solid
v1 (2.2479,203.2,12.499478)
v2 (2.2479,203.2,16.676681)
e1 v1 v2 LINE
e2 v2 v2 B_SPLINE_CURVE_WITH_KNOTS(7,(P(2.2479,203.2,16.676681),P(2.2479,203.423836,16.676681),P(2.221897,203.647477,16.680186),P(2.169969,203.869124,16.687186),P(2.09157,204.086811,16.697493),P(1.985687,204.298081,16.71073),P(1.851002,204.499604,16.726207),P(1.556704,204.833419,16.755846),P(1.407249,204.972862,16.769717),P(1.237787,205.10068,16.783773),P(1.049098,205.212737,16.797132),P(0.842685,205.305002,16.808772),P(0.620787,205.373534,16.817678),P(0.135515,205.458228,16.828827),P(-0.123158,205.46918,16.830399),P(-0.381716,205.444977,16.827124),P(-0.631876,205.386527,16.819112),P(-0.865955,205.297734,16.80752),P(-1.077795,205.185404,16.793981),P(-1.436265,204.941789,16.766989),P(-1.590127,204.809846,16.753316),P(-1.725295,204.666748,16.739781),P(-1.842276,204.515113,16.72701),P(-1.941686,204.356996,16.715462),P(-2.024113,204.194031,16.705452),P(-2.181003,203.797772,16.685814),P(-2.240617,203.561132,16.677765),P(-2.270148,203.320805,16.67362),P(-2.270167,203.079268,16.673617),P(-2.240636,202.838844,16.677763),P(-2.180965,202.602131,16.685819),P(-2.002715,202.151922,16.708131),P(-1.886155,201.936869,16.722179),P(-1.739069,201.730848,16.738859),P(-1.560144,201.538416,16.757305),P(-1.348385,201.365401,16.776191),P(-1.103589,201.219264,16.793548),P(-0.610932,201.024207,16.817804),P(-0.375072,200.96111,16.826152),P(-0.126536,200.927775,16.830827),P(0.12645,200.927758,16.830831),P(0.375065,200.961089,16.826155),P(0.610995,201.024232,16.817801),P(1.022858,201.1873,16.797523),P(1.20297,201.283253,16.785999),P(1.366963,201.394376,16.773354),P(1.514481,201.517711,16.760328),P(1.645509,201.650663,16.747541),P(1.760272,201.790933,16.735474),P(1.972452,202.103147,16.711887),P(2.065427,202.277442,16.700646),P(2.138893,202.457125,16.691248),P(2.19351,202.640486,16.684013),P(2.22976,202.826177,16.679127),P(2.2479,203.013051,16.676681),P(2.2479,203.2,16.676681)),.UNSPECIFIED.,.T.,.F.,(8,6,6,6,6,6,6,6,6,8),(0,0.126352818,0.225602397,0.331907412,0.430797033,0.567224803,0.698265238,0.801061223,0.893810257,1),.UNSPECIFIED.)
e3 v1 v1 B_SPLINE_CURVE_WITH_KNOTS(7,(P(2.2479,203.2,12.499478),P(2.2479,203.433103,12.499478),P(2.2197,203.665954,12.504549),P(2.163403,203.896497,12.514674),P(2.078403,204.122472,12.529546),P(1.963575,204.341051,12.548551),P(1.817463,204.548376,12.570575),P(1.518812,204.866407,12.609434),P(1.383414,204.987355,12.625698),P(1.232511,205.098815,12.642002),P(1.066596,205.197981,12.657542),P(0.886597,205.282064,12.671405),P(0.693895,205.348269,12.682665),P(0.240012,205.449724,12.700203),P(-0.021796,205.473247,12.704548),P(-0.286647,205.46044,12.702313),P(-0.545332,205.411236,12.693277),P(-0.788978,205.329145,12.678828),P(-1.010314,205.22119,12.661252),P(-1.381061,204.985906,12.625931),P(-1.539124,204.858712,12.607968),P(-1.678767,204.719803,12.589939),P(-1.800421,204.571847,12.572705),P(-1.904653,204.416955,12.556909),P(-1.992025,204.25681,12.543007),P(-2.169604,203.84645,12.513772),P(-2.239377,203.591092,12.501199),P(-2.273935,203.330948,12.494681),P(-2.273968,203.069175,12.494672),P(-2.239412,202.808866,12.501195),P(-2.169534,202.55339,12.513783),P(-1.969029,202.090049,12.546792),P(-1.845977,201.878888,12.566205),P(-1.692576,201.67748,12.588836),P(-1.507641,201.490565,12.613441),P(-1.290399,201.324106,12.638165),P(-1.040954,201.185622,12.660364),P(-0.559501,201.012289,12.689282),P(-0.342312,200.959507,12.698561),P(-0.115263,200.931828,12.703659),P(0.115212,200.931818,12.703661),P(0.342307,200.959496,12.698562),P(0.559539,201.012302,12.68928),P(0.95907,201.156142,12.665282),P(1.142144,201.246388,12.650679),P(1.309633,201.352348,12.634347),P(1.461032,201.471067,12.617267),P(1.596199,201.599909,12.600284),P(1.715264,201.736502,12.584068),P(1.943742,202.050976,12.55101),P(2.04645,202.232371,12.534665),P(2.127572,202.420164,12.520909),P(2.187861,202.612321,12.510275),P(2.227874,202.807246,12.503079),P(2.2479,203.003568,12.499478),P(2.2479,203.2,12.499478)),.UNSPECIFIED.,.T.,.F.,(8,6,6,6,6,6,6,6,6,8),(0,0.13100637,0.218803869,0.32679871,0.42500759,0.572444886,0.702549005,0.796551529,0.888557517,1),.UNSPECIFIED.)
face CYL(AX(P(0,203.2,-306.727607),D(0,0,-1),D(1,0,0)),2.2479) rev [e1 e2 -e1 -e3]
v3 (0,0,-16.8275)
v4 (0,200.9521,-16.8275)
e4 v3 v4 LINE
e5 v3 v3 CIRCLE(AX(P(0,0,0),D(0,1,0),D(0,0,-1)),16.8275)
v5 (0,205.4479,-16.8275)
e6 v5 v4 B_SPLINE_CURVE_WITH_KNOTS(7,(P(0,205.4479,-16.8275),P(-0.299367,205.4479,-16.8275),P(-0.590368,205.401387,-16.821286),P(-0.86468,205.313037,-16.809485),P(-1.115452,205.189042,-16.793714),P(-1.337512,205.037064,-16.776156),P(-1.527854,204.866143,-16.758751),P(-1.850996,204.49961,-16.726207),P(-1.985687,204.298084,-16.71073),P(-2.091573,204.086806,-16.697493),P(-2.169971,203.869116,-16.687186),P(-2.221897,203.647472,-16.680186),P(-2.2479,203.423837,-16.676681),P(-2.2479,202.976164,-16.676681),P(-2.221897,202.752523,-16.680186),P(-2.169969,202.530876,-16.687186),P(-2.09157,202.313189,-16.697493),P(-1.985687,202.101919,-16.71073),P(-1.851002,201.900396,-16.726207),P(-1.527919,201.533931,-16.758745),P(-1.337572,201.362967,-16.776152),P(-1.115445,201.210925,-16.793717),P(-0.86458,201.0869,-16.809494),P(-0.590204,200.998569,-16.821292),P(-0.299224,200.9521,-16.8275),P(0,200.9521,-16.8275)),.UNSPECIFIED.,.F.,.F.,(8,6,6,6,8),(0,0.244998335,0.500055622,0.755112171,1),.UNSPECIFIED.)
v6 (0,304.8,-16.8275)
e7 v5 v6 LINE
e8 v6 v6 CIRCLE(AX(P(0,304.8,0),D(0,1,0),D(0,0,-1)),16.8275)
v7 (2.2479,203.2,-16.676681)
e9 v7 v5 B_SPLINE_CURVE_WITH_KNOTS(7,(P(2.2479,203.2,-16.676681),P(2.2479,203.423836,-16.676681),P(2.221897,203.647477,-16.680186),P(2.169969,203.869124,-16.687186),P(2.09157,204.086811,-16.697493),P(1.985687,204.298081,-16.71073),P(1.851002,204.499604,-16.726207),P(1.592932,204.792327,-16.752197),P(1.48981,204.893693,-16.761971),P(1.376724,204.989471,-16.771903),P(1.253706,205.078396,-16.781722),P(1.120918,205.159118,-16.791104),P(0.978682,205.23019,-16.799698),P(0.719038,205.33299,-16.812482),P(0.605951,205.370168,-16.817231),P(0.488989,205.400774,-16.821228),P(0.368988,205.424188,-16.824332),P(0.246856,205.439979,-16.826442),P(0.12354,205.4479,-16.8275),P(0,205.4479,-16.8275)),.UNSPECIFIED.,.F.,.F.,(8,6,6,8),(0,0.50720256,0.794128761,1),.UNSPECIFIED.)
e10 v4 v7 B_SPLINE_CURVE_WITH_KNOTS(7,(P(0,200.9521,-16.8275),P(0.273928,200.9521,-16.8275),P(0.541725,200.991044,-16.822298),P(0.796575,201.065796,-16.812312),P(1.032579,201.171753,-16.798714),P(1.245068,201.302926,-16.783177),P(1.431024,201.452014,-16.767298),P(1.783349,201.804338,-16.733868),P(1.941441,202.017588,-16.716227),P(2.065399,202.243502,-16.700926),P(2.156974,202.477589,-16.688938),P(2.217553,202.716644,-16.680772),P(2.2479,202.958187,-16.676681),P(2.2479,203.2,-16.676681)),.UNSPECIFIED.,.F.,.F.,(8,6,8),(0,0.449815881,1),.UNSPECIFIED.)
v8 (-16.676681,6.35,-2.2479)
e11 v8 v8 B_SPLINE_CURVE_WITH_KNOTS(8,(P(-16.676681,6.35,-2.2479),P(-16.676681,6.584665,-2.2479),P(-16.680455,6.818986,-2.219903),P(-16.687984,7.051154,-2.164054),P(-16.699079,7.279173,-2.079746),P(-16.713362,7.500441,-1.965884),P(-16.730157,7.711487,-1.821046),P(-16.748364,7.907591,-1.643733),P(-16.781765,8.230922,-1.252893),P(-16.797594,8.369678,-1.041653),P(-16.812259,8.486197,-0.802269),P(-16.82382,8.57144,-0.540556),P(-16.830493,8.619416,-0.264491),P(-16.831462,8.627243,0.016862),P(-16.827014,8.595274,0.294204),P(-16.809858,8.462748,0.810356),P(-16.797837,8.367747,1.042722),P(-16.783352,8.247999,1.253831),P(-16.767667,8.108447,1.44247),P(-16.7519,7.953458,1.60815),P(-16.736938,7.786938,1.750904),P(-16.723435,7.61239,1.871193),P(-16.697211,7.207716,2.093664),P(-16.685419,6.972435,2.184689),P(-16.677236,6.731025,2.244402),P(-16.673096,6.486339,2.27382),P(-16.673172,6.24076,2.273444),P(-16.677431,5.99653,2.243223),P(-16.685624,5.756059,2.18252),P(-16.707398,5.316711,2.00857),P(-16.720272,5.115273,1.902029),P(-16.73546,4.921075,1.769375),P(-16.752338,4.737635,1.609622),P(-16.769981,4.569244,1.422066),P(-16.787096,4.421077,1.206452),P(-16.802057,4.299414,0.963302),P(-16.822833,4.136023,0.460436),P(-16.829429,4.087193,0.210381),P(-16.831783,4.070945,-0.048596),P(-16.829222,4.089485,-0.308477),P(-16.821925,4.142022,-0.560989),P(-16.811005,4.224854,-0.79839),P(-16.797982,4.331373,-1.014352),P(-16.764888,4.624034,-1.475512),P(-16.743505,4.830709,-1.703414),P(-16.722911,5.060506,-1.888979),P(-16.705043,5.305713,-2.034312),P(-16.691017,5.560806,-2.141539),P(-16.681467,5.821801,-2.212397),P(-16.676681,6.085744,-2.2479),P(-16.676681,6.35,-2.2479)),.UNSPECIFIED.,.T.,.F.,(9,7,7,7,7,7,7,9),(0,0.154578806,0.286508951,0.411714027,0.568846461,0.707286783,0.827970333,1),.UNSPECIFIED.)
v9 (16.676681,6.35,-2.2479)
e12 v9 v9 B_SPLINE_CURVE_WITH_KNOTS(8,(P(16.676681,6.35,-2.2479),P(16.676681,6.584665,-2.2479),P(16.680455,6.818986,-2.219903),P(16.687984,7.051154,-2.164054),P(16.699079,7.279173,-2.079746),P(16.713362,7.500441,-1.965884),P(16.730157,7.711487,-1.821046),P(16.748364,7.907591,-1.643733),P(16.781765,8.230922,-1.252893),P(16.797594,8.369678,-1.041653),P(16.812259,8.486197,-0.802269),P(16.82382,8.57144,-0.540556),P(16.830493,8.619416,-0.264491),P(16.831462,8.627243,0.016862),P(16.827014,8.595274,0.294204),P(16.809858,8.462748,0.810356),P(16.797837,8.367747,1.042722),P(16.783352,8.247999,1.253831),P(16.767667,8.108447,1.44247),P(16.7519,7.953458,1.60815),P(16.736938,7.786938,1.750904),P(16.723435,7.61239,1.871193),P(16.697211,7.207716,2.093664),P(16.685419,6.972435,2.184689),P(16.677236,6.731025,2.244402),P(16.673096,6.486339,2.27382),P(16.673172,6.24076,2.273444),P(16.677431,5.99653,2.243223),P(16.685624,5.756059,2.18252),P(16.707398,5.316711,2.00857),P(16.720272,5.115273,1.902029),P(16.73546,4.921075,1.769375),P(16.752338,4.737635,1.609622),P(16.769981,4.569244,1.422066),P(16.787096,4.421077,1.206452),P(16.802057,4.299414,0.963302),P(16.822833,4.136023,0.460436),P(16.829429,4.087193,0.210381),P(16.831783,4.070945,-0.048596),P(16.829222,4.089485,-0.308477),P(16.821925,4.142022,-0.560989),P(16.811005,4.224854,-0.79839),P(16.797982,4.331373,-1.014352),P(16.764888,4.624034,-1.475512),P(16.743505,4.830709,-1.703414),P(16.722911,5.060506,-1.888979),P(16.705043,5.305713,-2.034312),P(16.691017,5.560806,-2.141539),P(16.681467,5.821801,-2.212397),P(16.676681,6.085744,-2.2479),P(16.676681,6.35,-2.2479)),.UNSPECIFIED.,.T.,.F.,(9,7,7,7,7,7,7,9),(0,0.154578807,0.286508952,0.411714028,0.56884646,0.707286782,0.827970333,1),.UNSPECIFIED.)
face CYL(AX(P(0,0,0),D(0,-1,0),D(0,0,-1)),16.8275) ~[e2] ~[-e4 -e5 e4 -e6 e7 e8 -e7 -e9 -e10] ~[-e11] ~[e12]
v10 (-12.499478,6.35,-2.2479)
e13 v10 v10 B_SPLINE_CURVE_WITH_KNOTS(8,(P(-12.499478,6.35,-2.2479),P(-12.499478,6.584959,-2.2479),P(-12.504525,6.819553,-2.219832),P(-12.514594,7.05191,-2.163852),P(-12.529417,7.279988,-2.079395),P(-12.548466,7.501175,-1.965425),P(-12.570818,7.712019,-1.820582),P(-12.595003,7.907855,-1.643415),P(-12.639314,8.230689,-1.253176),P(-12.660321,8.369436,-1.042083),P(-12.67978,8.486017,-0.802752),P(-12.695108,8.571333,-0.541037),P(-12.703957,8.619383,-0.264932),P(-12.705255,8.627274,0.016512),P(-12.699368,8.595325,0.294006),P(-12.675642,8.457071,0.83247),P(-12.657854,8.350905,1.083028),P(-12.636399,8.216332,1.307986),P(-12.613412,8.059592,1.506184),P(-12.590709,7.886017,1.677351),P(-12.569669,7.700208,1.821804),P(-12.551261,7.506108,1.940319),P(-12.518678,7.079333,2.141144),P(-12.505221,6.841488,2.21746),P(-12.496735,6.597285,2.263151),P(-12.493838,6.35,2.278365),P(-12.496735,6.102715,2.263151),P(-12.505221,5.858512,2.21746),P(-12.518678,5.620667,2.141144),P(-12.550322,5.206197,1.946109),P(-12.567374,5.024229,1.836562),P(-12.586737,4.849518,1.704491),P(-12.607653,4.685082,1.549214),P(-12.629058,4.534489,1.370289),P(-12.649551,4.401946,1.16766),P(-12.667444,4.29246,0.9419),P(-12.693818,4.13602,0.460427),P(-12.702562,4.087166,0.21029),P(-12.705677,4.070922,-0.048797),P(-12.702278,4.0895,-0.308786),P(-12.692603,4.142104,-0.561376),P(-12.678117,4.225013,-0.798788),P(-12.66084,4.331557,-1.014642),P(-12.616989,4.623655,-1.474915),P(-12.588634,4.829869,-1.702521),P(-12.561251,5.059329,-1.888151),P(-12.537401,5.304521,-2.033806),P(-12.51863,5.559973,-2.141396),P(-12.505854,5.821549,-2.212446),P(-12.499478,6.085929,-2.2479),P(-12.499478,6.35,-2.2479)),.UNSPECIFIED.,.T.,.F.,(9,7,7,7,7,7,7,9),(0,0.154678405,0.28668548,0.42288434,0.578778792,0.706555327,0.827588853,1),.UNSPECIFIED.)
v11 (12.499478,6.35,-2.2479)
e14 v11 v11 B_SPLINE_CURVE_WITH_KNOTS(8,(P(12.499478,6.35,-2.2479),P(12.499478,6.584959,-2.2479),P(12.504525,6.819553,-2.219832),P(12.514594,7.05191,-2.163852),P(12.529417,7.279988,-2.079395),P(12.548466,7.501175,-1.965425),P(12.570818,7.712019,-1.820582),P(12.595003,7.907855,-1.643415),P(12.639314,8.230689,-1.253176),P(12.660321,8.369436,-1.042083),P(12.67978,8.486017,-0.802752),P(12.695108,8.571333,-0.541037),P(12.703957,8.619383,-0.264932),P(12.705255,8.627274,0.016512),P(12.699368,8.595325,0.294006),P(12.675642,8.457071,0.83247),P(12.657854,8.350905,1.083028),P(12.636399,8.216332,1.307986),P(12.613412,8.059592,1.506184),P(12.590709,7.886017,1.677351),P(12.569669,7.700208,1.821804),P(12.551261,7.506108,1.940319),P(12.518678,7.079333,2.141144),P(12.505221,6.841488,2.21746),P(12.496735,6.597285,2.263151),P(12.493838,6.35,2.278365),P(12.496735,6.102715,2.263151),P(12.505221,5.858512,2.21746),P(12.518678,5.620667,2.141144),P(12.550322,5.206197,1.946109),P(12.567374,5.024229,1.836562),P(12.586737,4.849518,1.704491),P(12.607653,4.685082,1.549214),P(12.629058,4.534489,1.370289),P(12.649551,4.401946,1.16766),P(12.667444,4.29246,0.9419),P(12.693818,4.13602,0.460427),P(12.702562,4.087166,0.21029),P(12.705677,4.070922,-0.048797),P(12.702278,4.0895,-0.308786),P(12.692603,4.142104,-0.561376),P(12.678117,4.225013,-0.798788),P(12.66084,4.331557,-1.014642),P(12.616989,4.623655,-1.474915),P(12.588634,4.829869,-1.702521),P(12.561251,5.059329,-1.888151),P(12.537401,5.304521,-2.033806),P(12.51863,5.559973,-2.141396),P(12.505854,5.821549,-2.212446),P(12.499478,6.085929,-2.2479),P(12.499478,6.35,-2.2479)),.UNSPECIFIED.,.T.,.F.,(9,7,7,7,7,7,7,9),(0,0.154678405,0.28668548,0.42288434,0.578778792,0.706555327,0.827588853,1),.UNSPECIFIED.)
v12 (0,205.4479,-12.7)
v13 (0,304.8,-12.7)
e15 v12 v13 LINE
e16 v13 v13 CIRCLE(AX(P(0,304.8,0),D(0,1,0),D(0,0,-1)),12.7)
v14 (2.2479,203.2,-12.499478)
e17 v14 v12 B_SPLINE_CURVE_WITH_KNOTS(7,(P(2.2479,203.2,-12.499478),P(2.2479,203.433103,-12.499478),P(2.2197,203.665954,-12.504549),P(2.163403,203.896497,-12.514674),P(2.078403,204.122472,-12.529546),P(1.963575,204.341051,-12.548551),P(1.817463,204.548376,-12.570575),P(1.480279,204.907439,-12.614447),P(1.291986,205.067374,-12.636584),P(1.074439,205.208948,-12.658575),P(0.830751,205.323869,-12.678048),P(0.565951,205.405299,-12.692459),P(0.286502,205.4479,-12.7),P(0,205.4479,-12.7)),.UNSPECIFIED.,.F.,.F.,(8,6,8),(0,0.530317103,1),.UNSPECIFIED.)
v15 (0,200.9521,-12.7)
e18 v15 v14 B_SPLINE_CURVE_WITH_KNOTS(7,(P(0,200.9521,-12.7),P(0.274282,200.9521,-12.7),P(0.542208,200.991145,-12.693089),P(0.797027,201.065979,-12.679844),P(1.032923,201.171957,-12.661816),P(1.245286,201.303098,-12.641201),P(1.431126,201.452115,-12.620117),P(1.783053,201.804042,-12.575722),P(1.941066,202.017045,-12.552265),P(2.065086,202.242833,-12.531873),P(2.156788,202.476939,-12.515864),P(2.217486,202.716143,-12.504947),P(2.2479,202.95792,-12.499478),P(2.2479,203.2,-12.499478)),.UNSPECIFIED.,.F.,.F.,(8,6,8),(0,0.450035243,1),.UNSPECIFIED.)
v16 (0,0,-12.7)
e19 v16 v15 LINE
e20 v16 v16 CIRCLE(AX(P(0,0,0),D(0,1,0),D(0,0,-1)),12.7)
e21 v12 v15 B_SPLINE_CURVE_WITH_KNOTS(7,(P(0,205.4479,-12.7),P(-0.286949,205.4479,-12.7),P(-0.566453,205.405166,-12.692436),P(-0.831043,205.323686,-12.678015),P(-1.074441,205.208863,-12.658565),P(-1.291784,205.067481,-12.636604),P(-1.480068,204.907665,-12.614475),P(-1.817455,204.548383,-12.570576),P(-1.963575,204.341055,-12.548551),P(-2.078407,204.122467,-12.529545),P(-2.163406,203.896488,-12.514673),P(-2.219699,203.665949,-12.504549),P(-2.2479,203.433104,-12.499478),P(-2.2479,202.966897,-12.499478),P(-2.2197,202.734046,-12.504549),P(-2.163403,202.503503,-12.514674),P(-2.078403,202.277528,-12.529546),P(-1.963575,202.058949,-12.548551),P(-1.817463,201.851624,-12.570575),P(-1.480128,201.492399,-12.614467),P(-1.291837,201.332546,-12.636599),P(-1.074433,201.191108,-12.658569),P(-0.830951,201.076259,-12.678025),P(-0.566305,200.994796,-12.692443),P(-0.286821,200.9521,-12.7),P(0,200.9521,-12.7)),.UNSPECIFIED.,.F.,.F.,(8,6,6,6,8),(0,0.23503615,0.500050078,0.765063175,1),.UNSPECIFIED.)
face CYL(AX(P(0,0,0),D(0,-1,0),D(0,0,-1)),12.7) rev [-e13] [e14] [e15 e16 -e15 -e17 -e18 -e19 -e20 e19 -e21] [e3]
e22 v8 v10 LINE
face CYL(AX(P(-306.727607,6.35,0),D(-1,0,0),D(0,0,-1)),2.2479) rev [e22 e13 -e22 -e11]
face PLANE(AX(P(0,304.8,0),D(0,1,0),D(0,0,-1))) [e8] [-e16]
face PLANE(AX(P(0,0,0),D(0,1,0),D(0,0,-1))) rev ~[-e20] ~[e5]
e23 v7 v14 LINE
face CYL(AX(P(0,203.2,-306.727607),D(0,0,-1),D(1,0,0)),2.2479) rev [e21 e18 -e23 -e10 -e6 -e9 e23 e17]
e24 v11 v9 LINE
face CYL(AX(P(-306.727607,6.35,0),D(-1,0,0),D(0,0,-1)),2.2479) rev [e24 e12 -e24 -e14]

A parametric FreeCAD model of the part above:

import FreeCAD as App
import Part
import Sketcher
Q = App.Units.Quantity

doc = App.newDocument("Part")
body = doc.addObject("PartDesign::Body", "Body")

# Sketch on XZ plane
sketch1 = doc.addObject("Sketcher::SketchObject", "Sketch")
body.addObject(sketch1)
sketch1.AttachmentSupport = (doc.XZ_Plane, [""])
sketch1.MapMode = "FlatFace"
sketch1.addGeometry([
    Part.Circle(App.Vector(0, 0, 0), App.Vector(0, 0, 1), 17),
    Part.Circle(App.Vector(0, 0, 0), App.Vector(0, 0, 1), 13),
], False)
sketch1.addConstraint([
    Sketcher.Constraint("Coincident", 0, 3, -1, 1),
    Sketcher.Constraint("Coincident", 1, 3, -1, 1),
    Sketcher.Constraint("Diameter", 1, Q("1 in")),
    Sketcher.Constraint("Diameter", 0, Q("1.325 in")),
])
pad1 = doc.addObject("PartDesign::Pad", "Pad")
body.addObject(pad1)
pad1.Profile = sketch1
pad1.Length = Q("12 in")
pad1.Reversed = True

# Sketch on XY plane
sketch2 = doc.addObject("Sketcher::SketchObject", "Sketch001")
body.addObject(sketch2)
sketch2.AttachmentSupport = (doc.XY_Plane, [""])
sketch2.MapMode = "FlatFace"
sketch2.addGeometry(Part.Circle(App.Vector(0, 203.2, 0), App.Vector(0, 0, 1), 2.2), False)
sketch2.addConstraint([
    Sketcher.Constraint("PointOnObject", 0, 3, -2),
    Sketcher.Constraint("Diameter", 0, Q("0.177 in")),
    Sketcher.Constraint("DistanceY", -1, 1, 0, 3, Q("8 in")),
])
pocket1 = doc.addObject("PartDesign::Pocket", "Pocket")
body.addObject(pocket1)
pocket1.Profile = sketch2
pocket1.Type = "ThroughAll"
pocket1.Midplane = True

# Sketch on YZ plane
sketch3 = doc.addObject("Sketcher::SketchObject", "Sketch002")
body.addObject(sketch3)
sketch3.AttachmentSupport = (doc.YZ_Plane, [""])
sketch3.MapMode = "FlatFace"
sketch3.addGeometry(Part.Circle(App.Vector(6.3, 0, 0), App.Vector(0, 0, 1), 2.2), False)
sketch3.addConstraint([
    Sketcher.Constraint("PointOnObject", 0, 3, -1),
    Sketcher.Constraint("Diameter", 0, Q("0.177 in")),
    Sketcher.Constraint("DistanceX", -1, 1, 0, 3, Q("0.25 in")),
])
pocket2 = doc.addObject("PartDesign::Pocket", "Pocket001")
body.addObject(pocket2)
pocket2.Profile = sketch3
pocket2.Type = "ThroughAll"
pocket2.Midplane = True

doc.recompute()
